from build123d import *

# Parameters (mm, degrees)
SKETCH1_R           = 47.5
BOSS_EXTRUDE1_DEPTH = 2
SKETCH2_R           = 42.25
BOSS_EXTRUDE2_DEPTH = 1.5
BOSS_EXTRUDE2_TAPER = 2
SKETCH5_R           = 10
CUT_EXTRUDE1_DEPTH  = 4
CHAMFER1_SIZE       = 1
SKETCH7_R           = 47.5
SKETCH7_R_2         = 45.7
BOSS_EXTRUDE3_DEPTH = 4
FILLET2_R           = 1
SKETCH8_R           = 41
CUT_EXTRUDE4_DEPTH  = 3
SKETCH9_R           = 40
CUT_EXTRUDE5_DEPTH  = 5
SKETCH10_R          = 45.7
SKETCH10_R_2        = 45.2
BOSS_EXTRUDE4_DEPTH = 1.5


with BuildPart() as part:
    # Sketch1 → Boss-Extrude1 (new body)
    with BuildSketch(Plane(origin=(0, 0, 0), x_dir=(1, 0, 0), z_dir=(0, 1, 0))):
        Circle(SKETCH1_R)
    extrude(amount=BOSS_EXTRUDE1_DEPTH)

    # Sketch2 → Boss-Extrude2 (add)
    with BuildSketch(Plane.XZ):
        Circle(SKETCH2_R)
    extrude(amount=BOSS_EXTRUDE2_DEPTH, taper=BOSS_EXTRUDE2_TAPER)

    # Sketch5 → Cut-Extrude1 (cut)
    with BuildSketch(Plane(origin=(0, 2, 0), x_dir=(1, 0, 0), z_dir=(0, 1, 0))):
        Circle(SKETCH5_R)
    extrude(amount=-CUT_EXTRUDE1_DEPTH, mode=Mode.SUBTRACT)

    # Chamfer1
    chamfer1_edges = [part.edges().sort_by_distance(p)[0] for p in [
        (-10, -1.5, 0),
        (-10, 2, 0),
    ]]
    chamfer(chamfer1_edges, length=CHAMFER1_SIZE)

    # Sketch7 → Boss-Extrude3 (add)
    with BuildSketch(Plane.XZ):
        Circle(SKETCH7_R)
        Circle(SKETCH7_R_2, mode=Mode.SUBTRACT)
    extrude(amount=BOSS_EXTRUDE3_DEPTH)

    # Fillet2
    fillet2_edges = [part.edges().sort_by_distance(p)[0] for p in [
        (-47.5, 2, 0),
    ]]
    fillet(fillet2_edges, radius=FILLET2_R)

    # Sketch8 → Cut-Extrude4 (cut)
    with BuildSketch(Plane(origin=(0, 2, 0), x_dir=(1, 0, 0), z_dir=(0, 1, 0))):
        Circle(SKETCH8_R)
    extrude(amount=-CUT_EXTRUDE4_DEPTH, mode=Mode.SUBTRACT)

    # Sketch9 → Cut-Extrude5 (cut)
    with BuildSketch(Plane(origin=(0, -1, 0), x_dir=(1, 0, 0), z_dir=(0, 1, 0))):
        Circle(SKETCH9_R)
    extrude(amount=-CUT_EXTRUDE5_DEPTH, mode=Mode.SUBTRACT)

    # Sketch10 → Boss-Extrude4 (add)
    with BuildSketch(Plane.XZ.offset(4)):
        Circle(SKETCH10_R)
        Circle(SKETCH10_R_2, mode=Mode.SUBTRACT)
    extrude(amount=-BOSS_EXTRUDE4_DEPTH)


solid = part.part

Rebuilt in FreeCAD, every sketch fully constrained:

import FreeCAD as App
import Part
import Sketcher
from FreeCAD import Vector
Q = App.Units.Quantity


def edges_at(feature, points):
    """Names of the edges that pass closest to the given points."""
    edges = feature.Shape.Edges
    near = lambda p: min(range(len(edges)), key=lambda i: edges[i].distToShape(Part.Vertex(*p))[0])
    return sorted({f"Edge{near(p) + 1}" for p in points})

doc = App.newDocument("Part")
body = doc.addObject("PartDesign::Body", "Body")

# Sketch on XZ plane
sketch1 = body.newObject("Sketcher::SketchObject", "Sketch")
sketch1.AttachmentSupport = (doc.getObject("XZ_Plane"), [""])
sketch1.MapMode = "FlatFace"
sketch1.addGeometry(Part.Circle(Vector(0, 0, 0), Vector(0, 0, 1), 48), False)
sketch1.addConstraint(Sketcher.Constraint("Coincident", 0, 3, -1, 1))
sketch1.addConstraint(Sketcher.Constraint("Diameter", 0, Q("95 mm")))
pad1 = body.newObject("PartDesign::Pad", "Pad")
pad1.Profile = sketch1
pad1.Length = 2
pad1.Reversed = True

# Sketch on XZ plane
sketch2 = body.newObject("Sketcher::SketchObject", "Sketch001")
sketch2.AttachmentSupport = (doc.getObject("XZ_Plane"), [""])
sketch2.MapMode = "FlatFace"
sketch2.addGeometry(Part.Circle(Vector(0, 0, 0), Vector(0, 0, 1), 42), False)
sketch2.addConstraint(Sketcher.Constraint("Coincident", 0, 3, -1, 1))
sketch2.addConstraint(Sketcher.Constraint("Diameter", 0, Q("84.5 mm")))
pad2 = body.newObject("PartDesign::Pad", "Pad001")
pad2.Profile = sketch2
pad2.Length = 1.5
pad2.TaperAngle = -2

# Sketch on XZ plane
sketch3 = body.newObject("Sketcher::SketchObject", "Sketch002")
sketch3.AttachmentSupport = (doc.getObject("XZ_Plane"), [""])
sketch3.MapMode = "FlatFace"
sketch3.AttachmentOffset = App.Placement(Vector(0, 0, -2), App.Rotation())
sketch3.addGeometry(Part.Circle(Vector(0, 0, 0), Vector(0, 0, 1), 10), False)
sketch3.addConstraint(Sketcher.Constraint("Coincident", 0, 3, -1, 1))
sketch3.addConstraint(Sketcher.Constraint("Diameter", 0, Q("20 mm")))
pocket1 = body.newObject("PartDesign::Pocket", "Pocket")
pocket1.Profile = sketch3
pocket1.Length = 4
pocket1.Reversed = True
doc.recompute()

chamfer = body.newObject("PartDesign::Chamfer", "Chamfer")
chamfer.Base = (pocket1, edges_at(pocket1, [(-10, -1.5, 0), (-10, 2, 0)]))
chamfer.Size = 1

# Sketch on XZ plane
sketch4 = body.newObject("Sketcher::SketchObject", "Sketch003")
sketch4.AttachmentSupport = (doc.getObject("XZ_Plane"), [""])
sketch4.MapMode = "FlatFace"
sketch4.addGeometry(Part.Circle(Vector(0, 0, 0), Vector(0, 0, 1), 48), False)
sketch4.addGeometry(Part.Circle(Vector(0, 0, 0), Vector(0, 0, 1), 46), False)
sketch4.addConstraint(Sketcher.Constraint("Coincident", 0, 3, -1, 1))
sketch4.addConstraint(Sketcher.Constraint("Coincident", 1, 3, -1, 1))
sketch4.addConstraint(Sketcher.Constraint("Diameter", 0, Q("95 mm")))
sketch4.addConstraint(Sketcher.Constraint("Diameter", 1, Q("91.4 mm")))
pad3 = body.newObject("PartDesign::Pad", "Pad002")
pad3.Profile = sketch4
pad3.Length = 4
doc.recompute()

fillet = body.newObject("PartDesign::Fillet", "Fillet")
fillet.Base = (pad3, edges_at(pad3, [(-47.5, 2, 0)]))
fillet.Radius = 1

# Sketch on XZ plane
sketch5 = body.newObject("Sketcher::SketchObject", "Sketch004")
sketch5.AttachmentSupport = (doc.getObject("XZ_Plane"), [""])
sketch5.MapMode = "FlatFace"
sketch5.AttachmentOffset = App.Placement(Vector(0, 0, -2), App.Rotation())
sketch5.addGeometry(Part.Circle(Vector(0, 0, 0), Vector(0, 0, 1), 41), False)
sketch5.addConstraint(Sketcher.Constraint("Coincident", 0, 3, -1, 1))
sketch5.addConstraint(Sketcher.Constraint("Diameter", 0, Q("82 mm")))
pocket2 = body.newObject("PartDesign::Pocket", "Pocket001")
pocket2.Profile = sketch5
pocket2.Length = 3
pocket2.Reversed = True

# Sketch on XZ plane
sketch6 = body.newObject("Sketcher::SketchObject", "Sketch005")
sketch6.AttachmentSupport = (doc.getObject("XZ_Plane"), [""])
sketch6.MapMode = "FlatFace"
sketch6.AttachmentOffset = App.Placement(Vector(0, 0, 1), App.Rotation())
sketch6.addGeometry(Part.Circle(Vector(0, 0, 0), Vector(0, 0, 1), 40), False)
sketch6.addConstraint(Sketcher.Constraint("Coincident", 0, 3, -1, 1))
sketch6.addConstraint(Sketcher.Constraint("Diameter", 0, Q("80 mm")))
pocket3 = body.newObject("PartDesign::Pocket", "Pocket002")
pocket3.Profile = sketch6
pocket3.Length = 5
pocket3.Reversed = True

# Sketch on XZ plane
sketch7 = body.newObject("Sketcher::SketchObject", "Sketch006")
sketch7.AttachmentSupport = (doc.getObject("XZ_Plane"), [""])
sketch7.MapMode = "FlatFace"
sketch7.AttachmentOffset = App.Placement(Vector(0, 0, 4), App.Rotation())
sketch7.addGeometry(Part.Circle(Vector(0, 0, 0), Vector(0, 0, 1), 46), False)
sketch7.addGeometry(Part.Circle(Vector(0, 0, 0), Vector(0, 0, 1), 45), False)
sketch7.addConstraint(Sketcher.Constraint("Coincident", 0, 3, -1, 1))
sketch7.addConstraint(Sketcher.Constraint("Coincident", 1, 3, -1, 1))
sketch7.addConstraint(Sketcher.Constraint("Diameter", 0, Q("91.4 mm")))
sketch7.addConstraint(Sketcher.Constraint("Diameter", 1, Q("90.4 mm")))
pad4 = body.newObject("PartDesign::Pad", "Pad003")
pad4.Profile = sketch7
pad4.Length = 1.5
pad4.Reversed = True

doc.recompute()
